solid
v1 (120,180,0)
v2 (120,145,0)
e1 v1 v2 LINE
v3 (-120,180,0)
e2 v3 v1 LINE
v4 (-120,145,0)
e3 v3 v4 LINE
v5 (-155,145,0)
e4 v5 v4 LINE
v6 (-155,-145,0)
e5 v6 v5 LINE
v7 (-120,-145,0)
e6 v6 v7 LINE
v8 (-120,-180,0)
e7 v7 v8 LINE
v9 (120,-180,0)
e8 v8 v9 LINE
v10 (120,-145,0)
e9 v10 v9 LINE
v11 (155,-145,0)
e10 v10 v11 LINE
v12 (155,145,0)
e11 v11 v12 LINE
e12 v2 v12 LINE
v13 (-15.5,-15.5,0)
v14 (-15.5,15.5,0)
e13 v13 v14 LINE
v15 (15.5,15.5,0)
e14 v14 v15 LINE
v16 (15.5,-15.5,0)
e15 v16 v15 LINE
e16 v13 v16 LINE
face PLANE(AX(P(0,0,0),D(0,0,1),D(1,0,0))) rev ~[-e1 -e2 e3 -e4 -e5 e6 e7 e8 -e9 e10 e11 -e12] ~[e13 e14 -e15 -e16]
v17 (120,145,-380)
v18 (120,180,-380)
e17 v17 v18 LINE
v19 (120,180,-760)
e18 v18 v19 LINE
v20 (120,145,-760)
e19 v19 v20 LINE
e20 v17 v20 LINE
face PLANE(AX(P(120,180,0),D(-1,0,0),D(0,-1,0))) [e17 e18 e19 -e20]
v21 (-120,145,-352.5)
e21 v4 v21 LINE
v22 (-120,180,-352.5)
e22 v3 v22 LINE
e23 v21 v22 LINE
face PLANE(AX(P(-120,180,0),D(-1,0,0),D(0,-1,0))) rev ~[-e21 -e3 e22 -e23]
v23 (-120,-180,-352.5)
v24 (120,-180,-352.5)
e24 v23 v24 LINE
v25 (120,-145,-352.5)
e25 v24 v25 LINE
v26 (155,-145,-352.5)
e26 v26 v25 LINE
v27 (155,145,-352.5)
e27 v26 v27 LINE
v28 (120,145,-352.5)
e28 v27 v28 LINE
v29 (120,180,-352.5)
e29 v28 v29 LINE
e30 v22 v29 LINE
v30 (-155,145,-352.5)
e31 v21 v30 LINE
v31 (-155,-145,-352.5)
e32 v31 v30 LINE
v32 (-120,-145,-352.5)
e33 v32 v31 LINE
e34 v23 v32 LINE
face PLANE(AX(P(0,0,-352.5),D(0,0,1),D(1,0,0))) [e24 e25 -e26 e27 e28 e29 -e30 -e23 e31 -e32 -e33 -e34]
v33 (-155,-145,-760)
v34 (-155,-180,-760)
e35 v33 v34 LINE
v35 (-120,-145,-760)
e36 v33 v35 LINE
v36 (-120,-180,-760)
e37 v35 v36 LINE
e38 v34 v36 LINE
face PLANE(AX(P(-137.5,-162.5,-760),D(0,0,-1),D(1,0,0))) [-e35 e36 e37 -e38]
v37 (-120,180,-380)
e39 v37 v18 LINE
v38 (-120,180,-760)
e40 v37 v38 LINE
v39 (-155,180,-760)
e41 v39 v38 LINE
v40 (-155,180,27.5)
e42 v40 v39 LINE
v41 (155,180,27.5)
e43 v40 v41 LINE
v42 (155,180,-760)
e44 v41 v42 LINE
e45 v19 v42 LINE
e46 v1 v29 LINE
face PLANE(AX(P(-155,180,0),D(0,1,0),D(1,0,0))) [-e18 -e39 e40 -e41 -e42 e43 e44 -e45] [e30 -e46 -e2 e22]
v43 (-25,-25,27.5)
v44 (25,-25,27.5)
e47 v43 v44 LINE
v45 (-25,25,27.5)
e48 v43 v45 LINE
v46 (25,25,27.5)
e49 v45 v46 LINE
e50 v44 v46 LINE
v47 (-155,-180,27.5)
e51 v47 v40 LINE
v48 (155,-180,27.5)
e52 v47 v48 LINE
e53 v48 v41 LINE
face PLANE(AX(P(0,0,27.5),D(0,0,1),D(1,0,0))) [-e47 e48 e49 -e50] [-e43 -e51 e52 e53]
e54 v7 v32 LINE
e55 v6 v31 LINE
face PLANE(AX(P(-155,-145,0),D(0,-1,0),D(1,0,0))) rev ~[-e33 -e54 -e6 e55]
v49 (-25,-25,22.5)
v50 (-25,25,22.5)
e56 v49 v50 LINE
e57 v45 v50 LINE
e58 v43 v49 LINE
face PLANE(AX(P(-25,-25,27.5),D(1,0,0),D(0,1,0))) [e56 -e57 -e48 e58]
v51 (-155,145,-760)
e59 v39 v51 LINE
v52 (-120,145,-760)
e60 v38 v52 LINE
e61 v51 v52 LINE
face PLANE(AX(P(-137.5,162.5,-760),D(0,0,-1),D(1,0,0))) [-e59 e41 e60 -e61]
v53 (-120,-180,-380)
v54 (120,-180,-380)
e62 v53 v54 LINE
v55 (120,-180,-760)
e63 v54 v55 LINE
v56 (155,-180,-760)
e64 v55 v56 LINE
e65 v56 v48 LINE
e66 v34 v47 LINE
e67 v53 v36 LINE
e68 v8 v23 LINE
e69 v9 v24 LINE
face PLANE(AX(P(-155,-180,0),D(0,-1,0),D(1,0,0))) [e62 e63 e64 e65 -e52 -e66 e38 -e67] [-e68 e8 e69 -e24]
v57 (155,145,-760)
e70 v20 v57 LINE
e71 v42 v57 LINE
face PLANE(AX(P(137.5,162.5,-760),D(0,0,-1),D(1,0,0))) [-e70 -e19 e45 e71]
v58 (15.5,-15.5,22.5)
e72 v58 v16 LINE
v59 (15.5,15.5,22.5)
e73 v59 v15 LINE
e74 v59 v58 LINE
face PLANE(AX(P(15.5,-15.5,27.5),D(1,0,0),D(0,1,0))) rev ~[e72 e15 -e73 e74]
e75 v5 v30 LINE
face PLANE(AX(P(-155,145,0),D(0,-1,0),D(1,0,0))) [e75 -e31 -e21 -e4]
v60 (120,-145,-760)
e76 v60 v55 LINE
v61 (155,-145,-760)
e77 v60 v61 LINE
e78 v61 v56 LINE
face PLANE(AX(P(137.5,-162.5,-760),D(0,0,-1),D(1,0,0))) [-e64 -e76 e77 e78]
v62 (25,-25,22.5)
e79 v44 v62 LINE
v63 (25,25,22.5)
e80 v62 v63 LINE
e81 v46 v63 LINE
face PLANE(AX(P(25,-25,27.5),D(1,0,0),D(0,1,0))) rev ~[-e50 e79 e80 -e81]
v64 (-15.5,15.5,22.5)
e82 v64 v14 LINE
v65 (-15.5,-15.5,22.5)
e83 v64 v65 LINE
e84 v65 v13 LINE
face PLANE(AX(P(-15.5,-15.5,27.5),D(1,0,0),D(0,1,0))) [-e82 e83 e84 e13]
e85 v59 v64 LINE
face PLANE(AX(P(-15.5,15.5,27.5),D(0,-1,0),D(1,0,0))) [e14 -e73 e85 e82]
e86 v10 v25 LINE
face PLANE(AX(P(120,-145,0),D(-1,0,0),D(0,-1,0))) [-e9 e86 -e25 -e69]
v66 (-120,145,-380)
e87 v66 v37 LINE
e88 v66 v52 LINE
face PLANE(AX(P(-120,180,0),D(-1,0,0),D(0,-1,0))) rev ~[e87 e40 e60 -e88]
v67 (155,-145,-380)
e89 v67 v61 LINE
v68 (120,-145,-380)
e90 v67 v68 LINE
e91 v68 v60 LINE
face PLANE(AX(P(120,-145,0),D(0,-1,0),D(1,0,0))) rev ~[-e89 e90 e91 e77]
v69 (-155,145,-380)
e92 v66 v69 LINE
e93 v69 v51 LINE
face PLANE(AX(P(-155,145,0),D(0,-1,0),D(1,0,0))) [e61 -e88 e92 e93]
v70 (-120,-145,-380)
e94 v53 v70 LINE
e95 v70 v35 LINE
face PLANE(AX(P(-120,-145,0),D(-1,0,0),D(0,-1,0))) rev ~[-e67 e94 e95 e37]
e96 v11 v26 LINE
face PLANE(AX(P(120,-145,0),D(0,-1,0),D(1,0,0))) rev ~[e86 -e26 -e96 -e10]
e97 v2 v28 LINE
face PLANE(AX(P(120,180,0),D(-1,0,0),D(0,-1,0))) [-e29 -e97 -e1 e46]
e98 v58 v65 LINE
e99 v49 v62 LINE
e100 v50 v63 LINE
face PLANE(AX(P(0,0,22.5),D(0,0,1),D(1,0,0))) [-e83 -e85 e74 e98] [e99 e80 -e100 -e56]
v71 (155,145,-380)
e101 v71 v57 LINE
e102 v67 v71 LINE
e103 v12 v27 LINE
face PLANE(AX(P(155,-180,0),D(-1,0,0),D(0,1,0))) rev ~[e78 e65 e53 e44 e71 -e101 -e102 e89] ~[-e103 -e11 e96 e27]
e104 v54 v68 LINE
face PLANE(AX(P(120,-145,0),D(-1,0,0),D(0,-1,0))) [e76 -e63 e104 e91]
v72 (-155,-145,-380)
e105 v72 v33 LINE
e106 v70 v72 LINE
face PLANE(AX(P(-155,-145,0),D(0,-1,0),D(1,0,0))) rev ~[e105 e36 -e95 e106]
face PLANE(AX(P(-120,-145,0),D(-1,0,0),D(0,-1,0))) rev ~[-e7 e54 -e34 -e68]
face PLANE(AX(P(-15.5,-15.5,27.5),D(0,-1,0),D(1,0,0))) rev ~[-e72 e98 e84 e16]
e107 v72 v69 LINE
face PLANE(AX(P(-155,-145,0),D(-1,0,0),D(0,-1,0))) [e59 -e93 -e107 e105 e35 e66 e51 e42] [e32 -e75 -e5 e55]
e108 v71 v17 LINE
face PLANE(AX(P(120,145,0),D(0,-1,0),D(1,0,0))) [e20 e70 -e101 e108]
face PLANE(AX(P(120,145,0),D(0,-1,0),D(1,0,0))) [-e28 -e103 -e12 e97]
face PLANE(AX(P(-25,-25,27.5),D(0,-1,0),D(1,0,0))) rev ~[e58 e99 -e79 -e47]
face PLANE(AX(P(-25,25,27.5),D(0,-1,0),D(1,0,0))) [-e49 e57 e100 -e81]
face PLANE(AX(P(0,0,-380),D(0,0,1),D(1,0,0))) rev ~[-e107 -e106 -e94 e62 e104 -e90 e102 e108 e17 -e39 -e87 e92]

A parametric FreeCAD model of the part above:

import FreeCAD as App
import Part
import Sketcher

V = App.Vector

doc = App.newDocument("Part")
body = doc.addObject("PartDesign::Body", "Body")

# Sketch on XY plane
sketch1 = body.newObject("Sketcher::SketchObject", "Sketch")
sketch1.AttachmentSupport = (doc.getObject("XY_Plane"), [""])
sketch1.MapMode = "FlatFace"
sketch1.addGeometry(Part.LineSegment(V(-155, 180, 0), V(-155, -180, 0)), False)
sketch1.addGeometry(Part.LineSegment(V(-155, -180, 0), V(155, -180, 0)), False)
sketch1.addGeometry(Part.LineSegment(V(155, -180, 0), V(155, 180, 0)), False)
sketch1.addGeometry(Part.LineSegment(V(155, 180, 0), V(-155, 180, 0)), False)
sketch1.addConstraint(Sketcher.Constraint("Coincident", 0, 2, 1, 1))
sketch1.addConstraint(Sketcher.Constraint("Coincident", 1, 2, 2, 1))
sketch1.addConstraint(Sketcher.Constraint("Coincident", 2, 2, 3, 1))
sketch1.addConstraint(Sketcher.Constraint("Coincident", 3, 2, 0, 1))
sketch1.addConstraint(Sketcher.Constraint("Vertical", 0))
sketch1.addConstraint(Sketcher.Constraint("Horizontal", 1))
sketch1.addConstraint(Sketcher.Constraint("Vertical", 2))
sketch1.addConstraint(Sketcher.Constraint("Horizontal", 3))
sketch1.addConstraint(Sketcher.Constraint("Symmetric", 0, 2, 2, 2, -1, 1))
sketch1.addConstraint(Sketcher.Constraint("DistanceX", 1, 1, 1, 2, 310.0))
sketch1.addConstraint(Sketcher.Constraint("DistanceY", 0, 2, 0, 1, 360.0))
pad1 = body.newObject("PartDesign::Pad", "Pad")
pad1.Profile = sketch1
pad1.Length = 27.5

# Sketch on XY plane
sketch2 = body.newObject("Sketcher::SketchObject", "Sketch001")
sketch2.AttachmentSupport = (doc.getObject("XY_Plane"), [""])
sketch2.MapMode = "FlatFace"
sketch2.addGeometry(Part.LineSegment(V(-155, -180, 0), V(-155, -145, 0)), False)
sketch2.addGeometry(Part.LineSegment(V(-155, -145, 0), V(-120, -145, 0)), False)
sketch2.addGeometry(Part.LineSegment(V(-120, -145, 0), V(-120, -180, 0)), False)
sketch2.addGeometry(Part.LineSegment(V(-120, -180, 0), V(-155, -180, 0)), False)
sketch2.addGeometry(Part.LineSegment(V(-155, 145, 0), V(-155, 180, 0)), False)
sketch2.addGeometry(Part.LineSegment(V(-155, 180, 0), V(-120, 180, 0)), False)
sketch2.addGeometry(Part.LineSegment(V(-120, 180, 0), V(-120, 145, 0)), False)
sketch2.addGeometry(Part.LineSegment(V(-120, 145, 0), V(-155, 145, 0)), False)
sketch2.addGeometry(Part.LineSegment(V(120, -180, 0), V(120, -145, 0)), False)
sketch2.addGeometry(Part.LineSegment(V(120, -145, 0), V(155, -145, 0)), False)
sketch2.addGeometry(Part.LineSegment(V(155, -145, 0), V(155, -180, 0)), False)
sketch2.addGeometry(Part.LineSegment(V(155, -180, 0), V(120, -180, 0)), False)
sketch2.addGeometry(Part.LineSegment(V(120, 145, 0), V(120, 180, 0)), False)
sketch2.addGeometry(Part.LineSegment(V(120, 180, 0), V(155, 180, 0)), False)
sketch2.addGeometry(Part.LineSegment(V(155, 180, 0), V(155, 145, 0)), False)
sketch2.addGeometry(Part.LineSegment(V(155, 145, 0), V(120, 145, 0)), False)
sketch2.addConstraint(Sketcher.Constraint("Coincident", 0, 2, 1, 1))
sketch2.addConstraint(Sketcher.Constraint("Coincident", 1, 2, 2, 1))
sketch2.addConstraint(Sketcher.Constraint("Coincident", 2, 2, 3, 1))
sketch2.addConstraint(Sketcher.Constraint("Coincident", 3, 2, 0, 1))
sketch2.addConstraint(Sketcher.Constraint("Coincident", 4, 2, 5, 1))
sketch2.addConstraint(Sketcher.Constraint("Coincident", 5, 2, 6, 1))
sketch2.addConstraint(Sketcher.Constraint("Coincident", 6, 2, 7, 1))
sketch2.addConstraint(Sketcher.Constraint("Coincident", 7, 2, 4, 1))
sketch2.addConstraint(Sketcher.Constraint("Coincident", 8, 2, 9, 1))
sketch2.addConstraint(Sketcher.Constraint("Coincident", 9, 2, 10, 1))
sketch2.addConstraint(Sketcher.Constraint("Coincident", 10, 2, 11, 1))
sketch2.addConstraint(Sketcher.Constraint("Coincident", 11, 2, 8, 1))
sketch2.addConstraint(Sketcher.Constraint("Coincident", 12, 2, 13, 1))
sketch2.addConstraint(Sketcher.Constraint("Coincident", 13, 2, 14, 1))
sketch2.addConstraint(Sketcher.Constraint("Coincident", 14, 2, 15, 1))
sketch2.addConstraint(Sketcher.Constraint("Coincident", 15, 2, 12, 1))
sketch2.addConstraint(Sketcher.Constraint("Vertical", 0))
sketch2.addConstraint(Sketcher.Constraint("Horizontal", 1))
sketch2.addConstraint(Sketcher.Constraint("Vertical", 2))
sketch2.addConstraint(Sketcher.Constraint("Horizontal", 3))
sketch2.addConstraint(Sketcher.Constraint("Vertical", 4))
sketch2.addConstraint(Sketcher.Constraint("Horizontal", 5))
sketch2.addConstraint(Sketcher.Constraint("Vertical", 6))
sketch2.addConstraint(Sketcher.Constraint("Horizontal", 7))
sketch2.addConstraint(Sketcher.Constraint("Vertical", 8))
sketch2.addConstraint(Sketcher.Constraint("Horizontal", 9))
sketch2.addConstraint(Sketcher.Constraint("Vertical", 10))
sketch2.addConstraint(Sketcher.Constraint("Horizontal", 11))
sketch2.addConstraint(Sketcher.Constraint("Vertical", 12))
sketch2.addConstraint(Sketcher.Constraint("Horizontal", 13))
sketch2.addConstraint(Sketcher.Constraint("Vertical", 14))
sketch2.addConstraint(Sketcher.Constraint("Horizontal", 15))
sketch2.addConstraint(Sketcher.Constraint("Symmetric", 6, 2, 8, 2, -1, 1))
sketch2.addConstraint(Sketcher.Constraint("Symmetric", 4, 2, 10, 2, -1, 1))
sketch2.addConstraint(Sketcher.Constraint("Symmetric", 2, 2, 12, 2, -1, 1))
sketch2.addConstraint(Sketcher.Constraint("Symmetric", 0, 2, 14, 2, -1, 1))
sketch2.addConstraint(Sketcher.Constraint("Symmetric", 1, 2, 8, 2, -2))
sketch2.addConstraint(Sketcher.Constraint("Symmetric", 3, 2, 10, 2, -2))
sketch2.addConstraint(Sketcher.Constraint("Equal", 15, 0))
sketch2.addConstraint(Sketcher.Constraint("DistanceX", 1, 1, 1, 2, 35.0))
sketch2.addConstraint(Sketcher.Constraint("DistanceX", 0, 2, -1, 1, 155.0))
sketch2.addConstraint(Sketcher.Constraint("DistanceY", 0, 2, -1, 1, 145.0))
pad2 = body.newObject("PartDesign::Pad", "Pad001")
pad2.Profile = sketch2
pad2.Length = 760
pad2.Reversed = True
doc.recompute()

linearpattern = body.newObject("PartDesign::LinearPattern", "LinearPattern")
linearpattern.Originals = [pad1]
linearpattern.Direction = (doc.getObject("Z_Axis"), [""])
linearpattern.Mode = "offset"
linearpattern.Offset = 380
linearpattern.Occurrences = 2
linearpattern.Reversed = True
body.Tip = linearpattern

# Sketch on XY plane
sketch3 = body.newObject("Sketcher::SketchObject", "Sketch002")
sketch3.AttachmentSupport = (doc.getObject("XY_Plane"), [""])
sketch3.MapMode = "FlatFace"
sketch3.AttachmentOffset = App.Placement(V(0, 0, 27.5), App.Rotation())
sketch3.addGeometry(Part.LineSegment(V(-15.5, 15.5, 0), V(-15.5, -15.5, 0)), False)
sketch3.addGeometry(Part.LineSegment(V(-15.5, -15.5, 0), V(15.5, -15.5, 0)), False)
sketch3.addGeometry(Part.LineSegment(V(15.5, -15.5, 0), V(15.5, 15.5, 0)), False)
sketch3.addGeometry(Part.LineSegment(V(15.5, 15.5, 0), V(-15.5, 15.5, 0)), False)
sketch3.addConstraint(Sketcher.Constraint("Coincident", 0, 2, 1, 1))
sketch3.addConstraint(Sketcher.Constraint("Coincident", 1, 2, 2, 1))
sketch3.addConstraint(Sketcher.Constraint("Coincident", 2, 2, 3, 1))
sketch3.addConstraint(Sketcher.Constraint("Coincident", 3, 2, 0, 1))
sketch3.addConstraint(Sketcher.Constraint("Vertical", 0))
sketch3.addConstraint(Sketcher.Constraint("Horizontal", 1))
sketch3.addConstraint(Sketcher.Constraint("Vertical", 2))
sketch3.addConstraint(Sketcher.Constraint("Horizontal", 3))
sketch3.addConstraint(Sketcher.Constraint("Symmetric", 0, 2, 2, 2, -1, 1))
sketch3.addConstraint(Sketcher.Constraint("Equal", 3, 0))
sketch3.addConstraint(Sketcher.Constraint("DistanceX", 1, 1, 1, 2, 31.0))
pocket1 = body.newObject("PartDesign::Pocket", "Pocket")
pocket1.Profile = sketch3
pocket1.Length = 28

# Sketch on XY plane
sketch4 = body.newObject("Sketcher::SketchObject", "Sketch003")
sketch4.AttachmentSupport = (doc.getObject("XY_Plane"), [""])
sketch4.MapMode = "FlatFace"
sketch4.AttachmentOffset = App.Placement(V(0, 0, 27.5), App.Rotation())
sketch4.addGeometry(Part.LineSegment(V(-25, 25, 0), V(-25, -25, 0)), False)
sketch4.addGeometry(Part.LineSegment(V(-25, -25, 0), V(25, -25, 0)), False)
sketch4.addGeometry(Part.LineSegment(V(25, -25, 0), V(25, 25, 0)), False)
sketch4.addGeometry(Part.LineSegment(V(25, 25, 0), V(-25, 25, 0)), False)
sketch4.addConstraint(Sketcher.Constraint("Coincident", 0, 2, 1, 1))
sketch4.addConstraint(Sketcher.Constraint("Coincident", 1, 2, 2, 1))
sketch4.addConstraint(Sketcher.Constraint("Coincident", 2, 2, 3, 1))
sketch4.addConstraint(Sketcher.Constraint("Coincident", 3, 2, 0, 1))
sketch4.addConstraint(Sketcher.Constraint("Vertical", 0))
sketch4.addConstraint(Sketcher.Constraint("Horizontal", 1))
sketch4.addConstraint(Sketcher.Constraint("Vertical", 2))
sketch4.addConstraint(Sketcher.Constraint("Horizontal", 3))
sketch4.addConstraint(Sketcher.Constraint("Symmetric", 0, 2, 2, 2, -1, 1))
sketch4.addConstraint(Sketcher.Constraint("Equal", 3, 0))
sketch4.addConstraint(Sketcher.Constraint("DistanceX", 1, 1, 1, 2, 50.0))
pocket2 = body.newObject("PartDesign::Pocket", "Pocket001")
pocket2.Profile = sketch4
pocket2.Length = 5

doc.recompute()
